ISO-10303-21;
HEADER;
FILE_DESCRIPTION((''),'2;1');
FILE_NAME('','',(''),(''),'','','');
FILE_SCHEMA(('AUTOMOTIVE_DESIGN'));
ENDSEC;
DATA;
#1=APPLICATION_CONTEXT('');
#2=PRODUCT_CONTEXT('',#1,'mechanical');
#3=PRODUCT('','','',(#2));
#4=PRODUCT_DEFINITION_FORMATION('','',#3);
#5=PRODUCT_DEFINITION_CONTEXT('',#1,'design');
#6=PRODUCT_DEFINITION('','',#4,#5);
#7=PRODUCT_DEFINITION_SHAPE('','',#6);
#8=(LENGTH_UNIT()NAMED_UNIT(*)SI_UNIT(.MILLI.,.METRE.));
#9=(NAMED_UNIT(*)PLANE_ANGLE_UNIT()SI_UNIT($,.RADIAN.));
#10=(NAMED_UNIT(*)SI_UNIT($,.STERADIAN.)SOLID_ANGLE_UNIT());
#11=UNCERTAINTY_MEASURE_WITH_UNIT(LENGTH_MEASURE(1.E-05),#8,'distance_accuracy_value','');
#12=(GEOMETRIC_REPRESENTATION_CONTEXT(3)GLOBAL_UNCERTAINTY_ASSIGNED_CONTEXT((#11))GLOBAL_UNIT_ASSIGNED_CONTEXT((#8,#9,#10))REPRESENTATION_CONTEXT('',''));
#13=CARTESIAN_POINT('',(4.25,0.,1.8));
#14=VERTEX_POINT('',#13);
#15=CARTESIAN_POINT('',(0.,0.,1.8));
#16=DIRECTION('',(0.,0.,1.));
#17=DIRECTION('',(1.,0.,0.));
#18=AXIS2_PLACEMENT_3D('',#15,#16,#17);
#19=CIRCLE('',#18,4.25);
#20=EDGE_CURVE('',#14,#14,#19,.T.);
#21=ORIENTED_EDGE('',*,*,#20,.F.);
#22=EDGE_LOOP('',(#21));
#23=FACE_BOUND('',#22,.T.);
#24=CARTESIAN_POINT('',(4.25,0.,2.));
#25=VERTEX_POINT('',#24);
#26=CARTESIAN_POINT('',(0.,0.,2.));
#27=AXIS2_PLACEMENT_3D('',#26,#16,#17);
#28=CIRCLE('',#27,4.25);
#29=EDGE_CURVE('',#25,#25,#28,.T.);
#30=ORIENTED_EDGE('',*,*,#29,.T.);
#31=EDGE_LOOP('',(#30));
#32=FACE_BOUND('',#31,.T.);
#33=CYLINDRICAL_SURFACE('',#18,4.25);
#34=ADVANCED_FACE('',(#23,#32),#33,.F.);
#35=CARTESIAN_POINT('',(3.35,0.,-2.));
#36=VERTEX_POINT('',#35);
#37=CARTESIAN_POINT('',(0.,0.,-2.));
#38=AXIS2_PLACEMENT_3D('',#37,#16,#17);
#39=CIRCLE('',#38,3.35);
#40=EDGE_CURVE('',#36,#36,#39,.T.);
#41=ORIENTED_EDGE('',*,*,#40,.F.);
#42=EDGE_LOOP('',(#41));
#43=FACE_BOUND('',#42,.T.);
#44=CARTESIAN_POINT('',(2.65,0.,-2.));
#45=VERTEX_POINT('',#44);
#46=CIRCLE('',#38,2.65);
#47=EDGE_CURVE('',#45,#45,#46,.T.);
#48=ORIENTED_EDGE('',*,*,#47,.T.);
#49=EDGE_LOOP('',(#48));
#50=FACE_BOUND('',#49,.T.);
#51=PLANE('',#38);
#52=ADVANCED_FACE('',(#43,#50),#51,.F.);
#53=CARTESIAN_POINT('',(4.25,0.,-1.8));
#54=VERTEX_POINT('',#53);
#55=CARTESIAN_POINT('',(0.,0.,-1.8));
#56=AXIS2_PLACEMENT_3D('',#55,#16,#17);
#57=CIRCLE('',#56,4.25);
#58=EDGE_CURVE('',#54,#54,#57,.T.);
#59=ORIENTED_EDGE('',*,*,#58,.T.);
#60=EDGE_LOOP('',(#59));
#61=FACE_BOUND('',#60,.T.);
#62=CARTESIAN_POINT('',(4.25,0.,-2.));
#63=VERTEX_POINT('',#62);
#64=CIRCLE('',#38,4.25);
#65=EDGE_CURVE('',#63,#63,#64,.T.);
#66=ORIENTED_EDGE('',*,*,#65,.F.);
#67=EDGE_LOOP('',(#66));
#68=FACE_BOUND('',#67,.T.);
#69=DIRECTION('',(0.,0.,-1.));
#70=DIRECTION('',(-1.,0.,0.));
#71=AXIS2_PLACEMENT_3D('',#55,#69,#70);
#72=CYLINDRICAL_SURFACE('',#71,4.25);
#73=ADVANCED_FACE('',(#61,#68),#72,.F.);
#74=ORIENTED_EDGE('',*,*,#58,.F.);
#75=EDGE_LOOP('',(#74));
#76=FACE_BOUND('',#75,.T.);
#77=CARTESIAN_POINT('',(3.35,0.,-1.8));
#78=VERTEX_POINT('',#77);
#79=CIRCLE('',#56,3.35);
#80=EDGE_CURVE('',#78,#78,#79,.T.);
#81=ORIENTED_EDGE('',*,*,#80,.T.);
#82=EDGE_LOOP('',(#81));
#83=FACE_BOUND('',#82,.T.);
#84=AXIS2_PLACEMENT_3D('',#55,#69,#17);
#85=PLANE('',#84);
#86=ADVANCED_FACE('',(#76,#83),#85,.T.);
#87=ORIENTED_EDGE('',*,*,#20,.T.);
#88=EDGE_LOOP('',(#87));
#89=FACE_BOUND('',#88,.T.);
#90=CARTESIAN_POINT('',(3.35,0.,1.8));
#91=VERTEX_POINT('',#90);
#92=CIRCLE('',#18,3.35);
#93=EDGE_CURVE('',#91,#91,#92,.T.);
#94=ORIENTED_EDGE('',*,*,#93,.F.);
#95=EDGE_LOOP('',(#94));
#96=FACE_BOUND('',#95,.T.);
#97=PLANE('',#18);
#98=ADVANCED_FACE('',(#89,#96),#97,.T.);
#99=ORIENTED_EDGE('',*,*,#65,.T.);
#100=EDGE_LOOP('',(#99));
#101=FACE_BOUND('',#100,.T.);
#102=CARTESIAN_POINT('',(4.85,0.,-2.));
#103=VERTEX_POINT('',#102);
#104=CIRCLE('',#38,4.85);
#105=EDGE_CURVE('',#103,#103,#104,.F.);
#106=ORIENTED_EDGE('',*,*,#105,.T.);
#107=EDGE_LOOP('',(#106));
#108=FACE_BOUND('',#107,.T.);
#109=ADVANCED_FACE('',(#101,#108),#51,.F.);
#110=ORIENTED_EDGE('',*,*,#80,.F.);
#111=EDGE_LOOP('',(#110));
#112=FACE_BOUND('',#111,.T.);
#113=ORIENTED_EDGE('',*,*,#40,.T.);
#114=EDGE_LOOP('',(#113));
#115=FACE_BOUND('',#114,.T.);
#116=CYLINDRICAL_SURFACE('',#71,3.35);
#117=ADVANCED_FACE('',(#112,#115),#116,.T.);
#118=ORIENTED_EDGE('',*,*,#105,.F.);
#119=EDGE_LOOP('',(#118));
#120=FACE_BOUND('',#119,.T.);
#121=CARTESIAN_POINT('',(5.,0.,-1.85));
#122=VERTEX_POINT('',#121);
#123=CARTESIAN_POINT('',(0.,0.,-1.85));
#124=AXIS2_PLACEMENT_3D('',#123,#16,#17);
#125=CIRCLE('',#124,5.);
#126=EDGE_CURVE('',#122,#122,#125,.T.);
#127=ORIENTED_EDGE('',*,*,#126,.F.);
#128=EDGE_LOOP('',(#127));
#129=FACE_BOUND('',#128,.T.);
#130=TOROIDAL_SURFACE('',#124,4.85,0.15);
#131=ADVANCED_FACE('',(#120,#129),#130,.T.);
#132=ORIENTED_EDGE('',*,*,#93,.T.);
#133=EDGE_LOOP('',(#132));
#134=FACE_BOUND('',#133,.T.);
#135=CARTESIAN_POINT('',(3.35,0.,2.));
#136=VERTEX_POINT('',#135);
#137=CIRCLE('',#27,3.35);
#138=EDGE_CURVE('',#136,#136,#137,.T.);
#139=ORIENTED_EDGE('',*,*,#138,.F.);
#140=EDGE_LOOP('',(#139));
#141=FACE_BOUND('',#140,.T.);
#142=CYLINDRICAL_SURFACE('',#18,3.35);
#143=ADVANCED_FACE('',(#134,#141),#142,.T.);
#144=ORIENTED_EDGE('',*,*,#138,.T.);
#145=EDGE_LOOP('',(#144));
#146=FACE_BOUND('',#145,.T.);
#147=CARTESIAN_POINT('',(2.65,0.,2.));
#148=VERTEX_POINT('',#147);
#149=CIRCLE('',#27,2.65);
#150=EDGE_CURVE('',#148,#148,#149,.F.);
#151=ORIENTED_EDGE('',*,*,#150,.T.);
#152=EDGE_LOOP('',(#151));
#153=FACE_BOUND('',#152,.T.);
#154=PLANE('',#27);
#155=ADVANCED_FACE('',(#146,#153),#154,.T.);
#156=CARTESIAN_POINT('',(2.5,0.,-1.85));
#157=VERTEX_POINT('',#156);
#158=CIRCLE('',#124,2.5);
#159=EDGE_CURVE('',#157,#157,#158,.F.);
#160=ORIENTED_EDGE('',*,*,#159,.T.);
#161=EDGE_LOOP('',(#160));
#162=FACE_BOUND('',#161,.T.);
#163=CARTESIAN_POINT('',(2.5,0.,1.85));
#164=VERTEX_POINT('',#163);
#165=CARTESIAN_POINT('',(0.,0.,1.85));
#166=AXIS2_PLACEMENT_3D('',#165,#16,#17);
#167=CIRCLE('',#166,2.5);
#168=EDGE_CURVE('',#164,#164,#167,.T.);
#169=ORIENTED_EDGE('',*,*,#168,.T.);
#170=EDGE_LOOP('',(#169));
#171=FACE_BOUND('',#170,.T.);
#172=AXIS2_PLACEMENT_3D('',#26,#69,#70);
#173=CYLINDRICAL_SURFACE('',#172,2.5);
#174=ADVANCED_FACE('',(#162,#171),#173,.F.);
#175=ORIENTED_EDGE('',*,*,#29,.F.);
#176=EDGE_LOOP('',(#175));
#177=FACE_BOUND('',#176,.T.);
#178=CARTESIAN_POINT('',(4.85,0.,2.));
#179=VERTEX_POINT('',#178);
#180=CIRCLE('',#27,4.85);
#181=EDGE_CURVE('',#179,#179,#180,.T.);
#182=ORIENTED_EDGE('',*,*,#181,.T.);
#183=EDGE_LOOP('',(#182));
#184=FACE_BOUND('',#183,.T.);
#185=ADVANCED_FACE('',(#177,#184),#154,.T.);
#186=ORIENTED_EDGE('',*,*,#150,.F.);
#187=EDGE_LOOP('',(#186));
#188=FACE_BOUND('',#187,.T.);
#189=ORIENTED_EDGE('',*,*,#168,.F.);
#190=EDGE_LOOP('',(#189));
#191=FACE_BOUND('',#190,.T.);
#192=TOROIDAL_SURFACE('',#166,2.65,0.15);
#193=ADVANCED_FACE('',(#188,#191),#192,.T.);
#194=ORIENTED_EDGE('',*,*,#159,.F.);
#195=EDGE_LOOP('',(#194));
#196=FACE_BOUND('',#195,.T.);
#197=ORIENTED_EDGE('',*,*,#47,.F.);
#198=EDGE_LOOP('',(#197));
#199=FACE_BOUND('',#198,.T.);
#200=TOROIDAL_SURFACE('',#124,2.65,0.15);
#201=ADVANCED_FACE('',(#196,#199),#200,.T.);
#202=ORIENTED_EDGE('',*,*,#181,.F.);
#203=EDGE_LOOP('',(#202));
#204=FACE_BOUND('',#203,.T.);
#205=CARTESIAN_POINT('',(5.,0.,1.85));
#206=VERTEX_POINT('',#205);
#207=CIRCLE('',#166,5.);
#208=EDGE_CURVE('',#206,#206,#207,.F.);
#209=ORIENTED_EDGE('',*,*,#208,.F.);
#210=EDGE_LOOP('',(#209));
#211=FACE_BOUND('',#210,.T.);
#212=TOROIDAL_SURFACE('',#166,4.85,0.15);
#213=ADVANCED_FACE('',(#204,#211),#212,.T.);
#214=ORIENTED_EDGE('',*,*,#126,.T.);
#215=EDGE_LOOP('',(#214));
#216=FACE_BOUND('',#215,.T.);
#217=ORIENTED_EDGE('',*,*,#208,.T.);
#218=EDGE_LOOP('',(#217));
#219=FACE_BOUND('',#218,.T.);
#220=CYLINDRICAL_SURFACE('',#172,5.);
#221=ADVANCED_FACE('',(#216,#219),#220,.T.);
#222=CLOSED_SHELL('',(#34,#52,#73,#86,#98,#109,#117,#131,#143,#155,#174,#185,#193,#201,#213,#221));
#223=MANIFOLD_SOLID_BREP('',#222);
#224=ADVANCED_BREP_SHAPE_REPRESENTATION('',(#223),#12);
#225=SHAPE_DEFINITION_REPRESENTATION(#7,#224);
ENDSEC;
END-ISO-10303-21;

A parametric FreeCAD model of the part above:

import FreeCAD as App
import Part
import Sketcher
Q = App.Units.Quantity


def edges_at(feature, points):
    """Names of the edges that pass closest to the given points."""
    edges = feature.Shape.Edges
    near = lambda p: min(range(len(edges)), key=lambda i: edges[i].distToShape(Part.Vertex(*p))[0])
    return sorted({f"Edge{near(p) + 1}" for p in points})

doc = App.newDocument("Part")
body = doc.addObject("PartDesign::Body", "Body")

sketch1 = body.newObject("Sketcher::SketchObject", "Sketch")
sketch1.AttachmentSupport = (doc.getObject("XY_Plane"), [""])
sketch1.MapMode = "FlatFace"
sketch1.addGeometry([
    Part.Circle(App.Vector(0, 0, 0), App.Vector(0, 0, 1), 5),
    Part.Circle(App.Vector(0, 0, 0), App.Vector(0, 0, 1), 2.5),
], False)
sketch1.addConstraint([
    Sketcher.Constraint("Coincident", 0, 3, -1, 1),
    Sketcher.Constraint("Coincident", 1, 3, -1, 1),
    Sketcher.Constraint("Diameter", 0, Q("10 mm")),
    Sketcher.Constraint("Diameter", 1, Q("5 mm")),
])
pad1 = body.newObject("PartDesign::Pad", "Pad")
pad1.Profile = sketch1
pad1.Length = 4
pad1.Midplane = True

sketch2 = body.newObject("Sketcher::SketchObject", "Sketch001")
sketch2.AttachmentSupport = (doc.getObject("XY_Plane"), [""])
sketch2.MapMode = "FlatFace"
sketch2.AttachmentOffset = App.Placement(App.Vector(0, 0, 2), App.Rotation())
sketch2.addGeometry([
    Part.Circle(App.Vector(0, 0, 0), App.Vector(0, 0, 1), 4.2),
    Part.Circle(App.Vector(0, 0, 0), App.Vector(0, 0, 1), 3.4),
], False)
sketch2.addConstraint([
    Sketcher.Constraint("Coincident", 0, 3, -1, 1),
    Sketcher.Constraint("Coincident", 1, 3, -1, 1),
    Sketcher.Constraint("Diameter", 0, Q("8.5 mm")),
    Sketcher.Constraint("Diameter", 1, Q("6.7 mm")),
])
pocket1 = body.newObject("PartDesign::Pocket", "Pocket")
pocket1.Profile = sketch2
pocket1.Length = 0.2
doc.recompute()

mirrored = body.newObject("PartDesign::Mirrored", "Mirrored")
mirrored.Originals = [pocket1]
mirrored.MirrorPlane = (doc.getObject("XY_Plane"), [""])
body.Tip = mirrored
doc.recompute()

fillet = body.newObject("PartDesign::Fillet", "Fillet")
fillet.Base = (mirrored, edges_at(mirrored, [
    (-5, 0, -2),
    (-5, 0, 2),
    (-2.5, 0, -2),
    (-2.5, 0, 2),
]))
fillet.Radius = 0.15

doc.recompute()
